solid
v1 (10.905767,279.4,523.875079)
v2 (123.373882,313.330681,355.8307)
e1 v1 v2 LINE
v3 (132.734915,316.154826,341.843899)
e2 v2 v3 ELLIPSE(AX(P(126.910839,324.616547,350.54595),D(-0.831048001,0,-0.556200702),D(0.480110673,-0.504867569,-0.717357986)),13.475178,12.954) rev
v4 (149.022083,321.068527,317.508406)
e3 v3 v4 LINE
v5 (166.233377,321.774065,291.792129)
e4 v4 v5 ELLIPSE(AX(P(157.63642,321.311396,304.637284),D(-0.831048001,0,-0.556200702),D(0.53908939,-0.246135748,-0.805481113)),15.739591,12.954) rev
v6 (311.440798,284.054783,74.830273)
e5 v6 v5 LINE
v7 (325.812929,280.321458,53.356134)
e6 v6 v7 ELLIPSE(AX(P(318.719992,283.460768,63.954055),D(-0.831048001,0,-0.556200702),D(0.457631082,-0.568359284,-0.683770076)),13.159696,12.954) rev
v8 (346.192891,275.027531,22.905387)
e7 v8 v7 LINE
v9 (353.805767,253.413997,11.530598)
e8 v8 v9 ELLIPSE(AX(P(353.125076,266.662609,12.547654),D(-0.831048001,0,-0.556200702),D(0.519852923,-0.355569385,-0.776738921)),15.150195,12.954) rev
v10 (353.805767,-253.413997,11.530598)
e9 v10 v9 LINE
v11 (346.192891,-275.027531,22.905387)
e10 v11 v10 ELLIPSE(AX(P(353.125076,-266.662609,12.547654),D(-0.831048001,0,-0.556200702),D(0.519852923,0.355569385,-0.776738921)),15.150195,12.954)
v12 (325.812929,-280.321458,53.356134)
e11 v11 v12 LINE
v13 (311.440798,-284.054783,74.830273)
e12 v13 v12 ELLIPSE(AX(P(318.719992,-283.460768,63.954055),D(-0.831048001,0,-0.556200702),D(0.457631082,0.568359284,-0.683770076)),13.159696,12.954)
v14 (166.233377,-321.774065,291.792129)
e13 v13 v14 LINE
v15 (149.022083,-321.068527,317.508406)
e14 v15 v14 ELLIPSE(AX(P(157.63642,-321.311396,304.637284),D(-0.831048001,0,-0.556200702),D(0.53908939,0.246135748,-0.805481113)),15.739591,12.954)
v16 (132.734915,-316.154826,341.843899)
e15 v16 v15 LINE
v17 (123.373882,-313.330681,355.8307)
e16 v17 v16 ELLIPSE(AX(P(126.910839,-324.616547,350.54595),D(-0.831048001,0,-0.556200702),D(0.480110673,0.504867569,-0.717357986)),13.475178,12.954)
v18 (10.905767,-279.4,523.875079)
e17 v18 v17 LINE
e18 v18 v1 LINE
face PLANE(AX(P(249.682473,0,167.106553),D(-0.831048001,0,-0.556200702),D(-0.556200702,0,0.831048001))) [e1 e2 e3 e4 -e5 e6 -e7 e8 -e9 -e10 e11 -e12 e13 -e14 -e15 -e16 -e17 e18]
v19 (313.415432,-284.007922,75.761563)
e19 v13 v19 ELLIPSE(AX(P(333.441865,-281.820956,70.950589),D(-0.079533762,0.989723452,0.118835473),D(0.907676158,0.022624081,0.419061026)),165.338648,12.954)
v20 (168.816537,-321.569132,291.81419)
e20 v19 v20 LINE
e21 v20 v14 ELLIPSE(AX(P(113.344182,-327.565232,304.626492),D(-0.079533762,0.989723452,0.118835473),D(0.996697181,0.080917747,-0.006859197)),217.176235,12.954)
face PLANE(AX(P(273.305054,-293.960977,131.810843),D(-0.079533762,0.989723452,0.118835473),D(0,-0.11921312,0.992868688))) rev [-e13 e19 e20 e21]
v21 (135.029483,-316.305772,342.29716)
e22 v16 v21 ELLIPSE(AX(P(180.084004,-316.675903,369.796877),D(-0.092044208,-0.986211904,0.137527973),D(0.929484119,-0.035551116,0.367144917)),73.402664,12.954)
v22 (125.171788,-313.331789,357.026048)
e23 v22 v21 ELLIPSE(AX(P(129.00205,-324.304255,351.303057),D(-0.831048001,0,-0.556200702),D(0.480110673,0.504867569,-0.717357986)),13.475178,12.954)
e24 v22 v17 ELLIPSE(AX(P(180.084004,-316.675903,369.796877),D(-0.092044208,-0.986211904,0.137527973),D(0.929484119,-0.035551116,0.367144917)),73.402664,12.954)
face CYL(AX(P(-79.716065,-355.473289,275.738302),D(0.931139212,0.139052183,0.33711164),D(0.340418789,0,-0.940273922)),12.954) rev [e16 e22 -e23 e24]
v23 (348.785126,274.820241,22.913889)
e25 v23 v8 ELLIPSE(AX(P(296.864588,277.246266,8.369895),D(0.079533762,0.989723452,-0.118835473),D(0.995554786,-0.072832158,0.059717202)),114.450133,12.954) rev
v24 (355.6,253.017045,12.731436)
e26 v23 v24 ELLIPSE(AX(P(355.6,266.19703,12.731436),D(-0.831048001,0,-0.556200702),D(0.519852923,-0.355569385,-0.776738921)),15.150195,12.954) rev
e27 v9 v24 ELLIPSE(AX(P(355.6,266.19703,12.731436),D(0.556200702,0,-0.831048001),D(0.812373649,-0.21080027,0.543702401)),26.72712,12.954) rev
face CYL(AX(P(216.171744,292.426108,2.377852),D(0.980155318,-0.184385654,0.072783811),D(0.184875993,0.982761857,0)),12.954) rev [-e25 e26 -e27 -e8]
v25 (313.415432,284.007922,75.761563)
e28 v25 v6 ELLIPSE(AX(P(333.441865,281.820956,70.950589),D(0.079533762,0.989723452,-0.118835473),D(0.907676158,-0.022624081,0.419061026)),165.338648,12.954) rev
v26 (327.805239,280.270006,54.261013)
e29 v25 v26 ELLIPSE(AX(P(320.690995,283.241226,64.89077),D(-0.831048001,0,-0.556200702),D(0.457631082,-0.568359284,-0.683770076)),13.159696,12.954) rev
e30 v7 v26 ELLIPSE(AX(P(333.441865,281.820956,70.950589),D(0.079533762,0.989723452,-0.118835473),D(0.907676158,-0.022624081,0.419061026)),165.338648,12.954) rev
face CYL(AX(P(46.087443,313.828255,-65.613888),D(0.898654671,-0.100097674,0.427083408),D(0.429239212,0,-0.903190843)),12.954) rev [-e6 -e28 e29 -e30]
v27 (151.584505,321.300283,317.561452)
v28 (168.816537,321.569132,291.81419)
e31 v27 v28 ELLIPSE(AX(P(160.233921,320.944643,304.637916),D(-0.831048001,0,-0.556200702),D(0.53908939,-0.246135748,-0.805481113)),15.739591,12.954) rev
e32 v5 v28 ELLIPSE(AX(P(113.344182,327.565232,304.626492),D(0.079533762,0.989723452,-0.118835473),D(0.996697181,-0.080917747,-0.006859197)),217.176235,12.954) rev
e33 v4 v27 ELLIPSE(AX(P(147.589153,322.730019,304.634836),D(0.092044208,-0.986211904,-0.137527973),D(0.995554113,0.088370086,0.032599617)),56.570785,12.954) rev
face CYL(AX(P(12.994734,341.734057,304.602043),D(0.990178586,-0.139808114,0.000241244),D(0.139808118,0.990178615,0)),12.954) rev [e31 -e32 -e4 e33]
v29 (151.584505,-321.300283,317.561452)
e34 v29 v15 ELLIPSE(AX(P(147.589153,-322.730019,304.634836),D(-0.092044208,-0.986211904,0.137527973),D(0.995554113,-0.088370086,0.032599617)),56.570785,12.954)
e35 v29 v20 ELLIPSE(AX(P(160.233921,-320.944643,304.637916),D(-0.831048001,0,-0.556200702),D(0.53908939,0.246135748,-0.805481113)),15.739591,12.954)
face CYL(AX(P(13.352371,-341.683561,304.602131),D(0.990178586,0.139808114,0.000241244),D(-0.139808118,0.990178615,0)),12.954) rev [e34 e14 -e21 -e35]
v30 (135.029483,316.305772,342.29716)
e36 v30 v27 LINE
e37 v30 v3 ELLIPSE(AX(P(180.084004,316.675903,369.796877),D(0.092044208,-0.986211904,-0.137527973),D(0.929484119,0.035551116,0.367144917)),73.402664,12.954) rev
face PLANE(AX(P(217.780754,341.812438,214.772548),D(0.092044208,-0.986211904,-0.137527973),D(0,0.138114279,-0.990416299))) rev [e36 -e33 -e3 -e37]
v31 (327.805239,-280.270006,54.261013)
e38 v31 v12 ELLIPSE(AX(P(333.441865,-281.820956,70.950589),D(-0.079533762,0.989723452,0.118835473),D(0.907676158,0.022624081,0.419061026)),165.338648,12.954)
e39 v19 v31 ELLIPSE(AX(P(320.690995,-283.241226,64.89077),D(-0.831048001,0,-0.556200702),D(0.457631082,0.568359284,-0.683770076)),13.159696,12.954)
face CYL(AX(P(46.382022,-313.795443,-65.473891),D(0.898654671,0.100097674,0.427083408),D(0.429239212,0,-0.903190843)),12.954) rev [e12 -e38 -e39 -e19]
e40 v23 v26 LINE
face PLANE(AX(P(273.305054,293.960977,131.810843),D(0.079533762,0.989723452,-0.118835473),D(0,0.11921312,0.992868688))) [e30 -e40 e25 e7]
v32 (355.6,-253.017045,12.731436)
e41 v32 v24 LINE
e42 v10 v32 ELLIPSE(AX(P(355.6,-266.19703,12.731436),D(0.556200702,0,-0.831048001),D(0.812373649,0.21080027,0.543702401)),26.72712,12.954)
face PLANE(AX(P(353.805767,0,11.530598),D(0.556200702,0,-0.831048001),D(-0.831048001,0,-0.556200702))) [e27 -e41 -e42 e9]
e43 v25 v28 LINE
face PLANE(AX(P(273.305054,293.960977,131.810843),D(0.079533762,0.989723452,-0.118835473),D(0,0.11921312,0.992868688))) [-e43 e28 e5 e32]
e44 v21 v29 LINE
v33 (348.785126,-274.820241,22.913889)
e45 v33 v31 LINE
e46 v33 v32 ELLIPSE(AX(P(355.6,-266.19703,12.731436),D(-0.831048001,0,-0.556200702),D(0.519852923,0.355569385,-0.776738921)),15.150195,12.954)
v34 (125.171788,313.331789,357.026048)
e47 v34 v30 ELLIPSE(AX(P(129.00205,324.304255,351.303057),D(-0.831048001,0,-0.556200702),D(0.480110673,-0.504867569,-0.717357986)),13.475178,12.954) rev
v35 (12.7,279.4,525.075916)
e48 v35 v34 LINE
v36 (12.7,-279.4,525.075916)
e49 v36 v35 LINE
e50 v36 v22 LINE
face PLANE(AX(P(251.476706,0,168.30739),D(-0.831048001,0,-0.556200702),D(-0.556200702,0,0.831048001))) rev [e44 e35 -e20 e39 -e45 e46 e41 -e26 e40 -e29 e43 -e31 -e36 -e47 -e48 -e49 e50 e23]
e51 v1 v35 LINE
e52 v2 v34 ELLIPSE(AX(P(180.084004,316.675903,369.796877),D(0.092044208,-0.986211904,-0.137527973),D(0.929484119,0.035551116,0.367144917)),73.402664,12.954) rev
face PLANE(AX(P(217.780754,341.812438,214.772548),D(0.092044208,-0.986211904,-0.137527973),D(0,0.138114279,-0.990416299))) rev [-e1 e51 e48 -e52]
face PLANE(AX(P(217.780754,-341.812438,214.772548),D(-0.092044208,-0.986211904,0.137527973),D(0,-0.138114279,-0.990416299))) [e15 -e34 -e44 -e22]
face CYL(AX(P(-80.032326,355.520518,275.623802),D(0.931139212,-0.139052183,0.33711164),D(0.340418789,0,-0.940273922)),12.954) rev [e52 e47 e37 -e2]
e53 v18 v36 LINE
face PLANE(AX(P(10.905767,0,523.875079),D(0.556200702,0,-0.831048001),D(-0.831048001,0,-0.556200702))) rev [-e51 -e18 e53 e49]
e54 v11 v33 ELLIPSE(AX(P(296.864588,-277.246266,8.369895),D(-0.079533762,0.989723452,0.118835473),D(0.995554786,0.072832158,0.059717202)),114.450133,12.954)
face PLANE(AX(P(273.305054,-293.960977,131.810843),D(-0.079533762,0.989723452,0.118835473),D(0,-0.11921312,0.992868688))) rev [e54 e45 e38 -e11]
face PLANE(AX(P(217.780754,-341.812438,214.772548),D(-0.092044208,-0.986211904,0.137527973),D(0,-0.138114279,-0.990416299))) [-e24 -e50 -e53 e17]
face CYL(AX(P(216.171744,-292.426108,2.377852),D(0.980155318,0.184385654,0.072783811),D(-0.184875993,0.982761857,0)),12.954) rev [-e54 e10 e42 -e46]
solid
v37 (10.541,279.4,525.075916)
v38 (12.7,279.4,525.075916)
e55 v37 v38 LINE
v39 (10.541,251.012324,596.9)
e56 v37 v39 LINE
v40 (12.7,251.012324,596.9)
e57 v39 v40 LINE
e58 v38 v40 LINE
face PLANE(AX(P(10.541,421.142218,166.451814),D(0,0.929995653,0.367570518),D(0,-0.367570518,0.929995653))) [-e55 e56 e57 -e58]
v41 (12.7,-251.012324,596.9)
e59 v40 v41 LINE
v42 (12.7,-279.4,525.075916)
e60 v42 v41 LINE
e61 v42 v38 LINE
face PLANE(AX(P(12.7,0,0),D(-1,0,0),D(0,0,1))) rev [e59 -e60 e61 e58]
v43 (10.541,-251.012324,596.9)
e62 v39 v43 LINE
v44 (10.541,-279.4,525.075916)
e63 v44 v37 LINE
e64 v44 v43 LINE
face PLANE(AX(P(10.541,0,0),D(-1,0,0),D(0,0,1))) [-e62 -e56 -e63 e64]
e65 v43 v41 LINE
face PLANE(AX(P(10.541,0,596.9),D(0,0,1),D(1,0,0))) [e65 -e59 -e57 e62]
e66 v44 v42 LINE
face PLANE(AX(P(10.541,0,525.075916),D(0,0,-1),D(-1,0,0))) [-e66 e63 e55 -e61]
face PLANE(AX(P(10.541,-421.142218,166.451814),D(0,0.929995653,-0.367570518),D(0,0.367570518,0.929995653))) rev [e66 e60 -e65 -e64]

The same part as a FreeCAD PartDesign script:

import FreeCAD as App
import Part
import Sketcher
Q = App.Units.Quantity

doc = App.newDocument("Part")
params = doc.addObject("Spreadsheet::Sheet", "Params")
for row, (alias, value) in enumerate([
    ("sketch1_height", "22 in"),
    ("sketch1_height2", "21.5 in"),
    ("pad1_length", "0.085 in"),
    ("sketch2_diameter", "1.02 in"),
    ("pocket1_length", "24.475 in"),
    ("sketch3_diameter", "1.02 in"),
    ("sketch4_diameter", "1.02 in"),
    ("sketch5_diameter", "1.02 in"),
    ("sketch6_width", "22 in"),
    ("pad2_length", "0.085 in"),
], start=1):
    params.set(f"A{row}", alias)
    params.set(f"B{row}", "=" + value)
    params.setAlias(f"B{row}", alias)

body = doc.addObject("PartDesign::Body", "Body")

sketch1 = body.newObject("Sketcher::SketchObject", "Sketch")
sketch1.Placement = App.Placement(App.Vector(251.476706, 0, 168.30739), App.Rotation(App.Vector(-0.556200702, 0, 0.831048001), App.Vector(0, 1.000000001, 0), App.Vector(-0.831048001, 0, -0.556200702), "ZXY"))
sketch1.addGeometry([
    Part.LineSegment(App.Vector(-187, 273, 0), App.Vector(-187, -273, 0)),
    Part.LineSegment(App.Vector(-187, -273, 0), App.Vector(164, -324, 0)),
    Part.LineSegment(App.Vector(164, -324, 0), App.Vector(429, -279, 0)),
    Part.LineSegment(App.Vector(429, -279, 0), App.Vector(429, 279, 0)),
    Part.LineSegment(App.Vector(429, 279, 0), App.Vector(164, 324, 0)),
    Part.LineSegment(App.Vector(164, 324, 0), App.Vector(-187, 273, 0)),
], False)
sketch1.addConstraint([
    Sketcher.Constraint("Coincident", 0, 2, 1, 1),
    Sketcher.Constraint("Coincident", 1, 2, 2, 1),
    Sketcher.Constraint("Coincident", 2, 2, 3, 1),
    Sketcher.Constraint("Coincident", 3, 2, 4, 1),
    Sketcher.Constraint("Coincident", 4, 2, 5, 1),
    Sketcher.Constraint("Coincident", 5, 2, 0, 1),
    Sketcher.Constraint("Vertical", 0),
    Sketcher.Constraint("Vertical", 3),
    Sketcher.Constraint("Symmetric", 1, 2, 4, 2, -1),
    Sketcher.Constraint("Equal", 2, 4),
    Sketcher.Constraint("Equal", 1, 5),
    Sketcher.Constraint("DistanceY", 3, 1, 3, 2, Q("22 in")),
    Sketcher.Constraint("DistanceY", 0, 2, 0, 1, Q("21.5 in")),
    Sketcher.Constraint("DistanceY", 1, 2, 0, 2, Q("2 in")),
    Sketcher.Constraint("Distance", 1, 355.257882),
    Sketcher.Constraint("Distance", 2, 268.60051),
    Sketcher.Constraint("DistanceX", -1, 1, 1, 2, 164.402522),
])
sketch1.setExpression("Constraints[11]", "Params.sketch1_height")
sketch1.setExpression("Constraints[12]", "Params.sketch1_height2")
pad1 = body.newObject("PartDesign::Pad", "Pad")
pad1.Profile = sketch1
pad1.setExpression("Length", "Params.pad1_length")

sketch2 = body.newObject("Sketcher::SketchObject", "Sketch001")
sketch2.Placement = App.Placement(App.Vector(825.5, 177.8, 47.625), App.Rotation(App.Vector(-0.071529153, 0.013455979, 0.997347741), App.Vector(0.184875993, 0.982761857, 0), App.Vector(-0.980155318, 0.184385654, -0.072783811), "ZXY"))
sketch2.addGeometry(Part.Circle(App.Vector(0, 0, 0), App.Vector(0, 0, 1), 13), False)
sketch2.addConstraint([
    Sketcher.Constraint("Coincident", 0, 3, -1, 1),
    Sketcher.Constraint("Diameter", 0, Q("1.02 in")),
])
sketch2.setExpression("Constraints[1]", "Params.sketch2_diameter")
pocket1 = body.newObject("PartDesign::Pocket", "Pocket")
pocket1.Profile = sketch2
pocket1.setExpression("Length", "Params.pocket1_length")
pocket1.Reversed = True

sketch3 = body.newObject("Sketcher::SketchObject", "Sketch002")
sketch3.Placement = App.Placement(App.Vector(825.5, 227.0125, 304.8), App.Rotation(App.Vector(-0.424458424, 0.047278785, 0.904212233), App.Vector(0.110701526, 0.993853697, 0), App.Vector(-0.898654671, 0.100097674, -0.427083408), "ZXY"))
sketch3.addGeometry(Part.Circle(App.Vector(0, 0, 0), App.Vector(0, 0, 1), 13), False)
sketch3.addConstraint([
    Sketcher.Constraint("Coincident", 0, 3, -1, 1),
    Sketcher.Constraint("Diameter", 0, Q("1.02 in")),
])
sketch3.setExpression("Constraints[1]", "Params.sketch3_diameter")
pocket2 = body.newObject("PartDesign::Pocket", "Pocket001")
pocket2.Profile = sketch3
pocket2.Type = "ThroughAll"
pocket2.Reversed = True

sketch4 = body.newObject("Sketcher::SketchObject", "Sketch003")
sketch4.Placement = App.Placement(App.Vector(825.5, 227.0125, 304.8), App.Rotation(App.Vector(-0.000238875, 0.000033728, 0.999999971), App.Vector(0.139808118, 0.990178615, 0), App.Vector(-0.990178586, 0.139808114, -0.000241244), "ZXY"))
sketch4.addGeometry(Part.Circle(App.Vector(0, 0, 0), App.Vector(0, 0, 1), 13), False)
sketch4.addConstraint([
    Sketcher.Constraint("Coincident", 0, 3, -1, 1),
    Sketcher.Constraint("Diameter", 0, Q("1.02 in")),
])
sketch4.setExpression("Constraints[1]", "Params.sketch4_diameter")
pocket3 = body.newObject("PartDesign::Pocket", "Pocket002")
pocket3.Profile = sketch4
pocket3.Type = "ThroughAll"
pocket3.Reversed = True

sketch5 = body.newObject("Sketcher::SketchObject", "Sketch004")
sketch5.Placement = App.Placement(App.Vector(825.5, 220.292353, 603.46467), App.Rotation(App.Vector(-0.333414385, 0.049790619, 0.941464679), App.Vector(0.147697716, 0.989032549, 0), App.Vector(-0.931139212, 0.139052183, -0.33711164), "ZXY"))
sketch5.addGeometry(Part.Circle(App.Vector(0, 0, 0), App.Vector(0, 0, 1), 13), False)
sketch5.addConstraint([
    Sketcher.Constraint("Coincident", 0, 3, -1, 1),
    Sketcher.Constraint("Diameter", 0, Q("1.02 in")),
])
sketch5.setExpression("Constraints[1]", "Params.sketch5_diameter")
pocket4 = body.newObject("PartDesign::Pocket", "Pocket003")
pocket4.Profile = sketch5
pocket4.Type = "ThroughAll"
pocket4.Reversed = True
doc.recompute()

mirrored = body.newObject("PartDesign::Mirrored", "Mirrored")
mirrored.Originals = [pocket1, pocket2, pocket3, pocket4]
mirrored.MirrorPlane = (doc.getObject("XZ_Plane"), [""])
body.Tip = mirrored
body2 = doc.addObject("PartDesign::Body", "Body001")

sketch6 = body2.newObject("Sketcher::SketchObject", "Sketch005")
sketch6.AttachmentSupport = (doc.getObject("YZ_Plane001"), [""])
sketch6.MapMode = "FlatFace"
sketch6.AttachmentOffset = App.Placement(App.Vector(0, 0, 0.5 * 25.4), App.Rotation())
sketch6.addGeometry([
    Part.LineSegment(App.Vector(-279, 525, 0), App.Vector(-251, 597, 0)),
    Part.LineSegment(App.Vector(-251, 597, 0), App.Vector(251, 597, 0)),
    Part.LineSegment(App.Vector(251, 597, 0), App.Vector(279, 525, 0)),
    Part.LineSegment(App.Vector(279, 525, 0), App.Vector(-279, 525, 0)),
], False)
sketch6.addConstraint([
    Sketcher.Constraint("Coincident", 0, 2, 1, 1),
    Sketcher.Constraint("Coincident", 1, 2, 2, 1),
    Sketcher.Constraint("Coincident", 2, 2, 3, 1),
    Sketcher.Constraint("Coincident", 3, 2, 0, 1),
    Sketcher.Constraint("Horizontal", 1),
    Sketcher.Constraint("Horizontal", 3),
    Sketcher.Constraint("Equal", 0, 2),
    Sketcher.Constraint("DistanceX", 3, 2, 3, 1, Q("22 in")),
    Sketcher.Constraint("DistanceX", -1, 1, 2, 2, Q("11 in")),
    Sketcher.Constraint("DistanceY", -1, 1, 0, 2, Q("23.5 in")),
    Sketcher.Constraint("Distance", 0, 77.230559),
    Sketcher.Constraint("DistanceX", 1, 1, 1, 2, 502.024647),
])
sketch6.setExpression("Constraints[7]", "Params.sketch6_width")
pad2 = body2.newObject("PartDesign::Pad", "Pad001")
pad2.Profile = sketch6
pad2.setExpression("Length", "Params.pad2_length")
pad2.Reversed = True

doc.recompute()
